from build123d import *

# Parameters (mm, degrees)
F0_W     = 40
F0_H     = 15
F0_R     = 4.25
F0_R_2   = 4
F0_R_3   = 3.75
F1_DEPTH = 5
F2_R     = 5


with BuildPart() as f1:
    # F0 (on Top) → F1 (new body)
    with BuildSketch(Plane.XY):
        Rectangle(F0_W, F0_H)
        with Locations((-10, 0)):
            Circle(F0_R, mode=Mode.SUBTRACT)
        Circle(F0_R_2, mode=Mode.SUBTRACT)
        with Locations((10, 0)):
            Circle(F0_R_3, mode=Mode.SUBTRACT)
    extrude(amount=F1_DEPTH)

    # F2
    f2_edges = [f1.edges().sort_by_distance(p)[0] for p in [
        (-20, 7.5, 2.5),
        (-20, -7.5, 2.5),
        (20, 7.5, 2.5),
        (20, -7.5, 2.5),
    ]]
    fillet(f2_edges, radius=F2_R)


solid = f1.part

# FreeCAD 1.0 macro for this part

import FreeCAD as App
import Part
import Sketcher
from FreeCAD import Vector


def edges_at(feature, points):
    """Names of the edges that pass closest to the given points."""
    edges = feature.Shape.Edges
    near = lambda p: min(range(len(edges)), key=lambda i: edges[i].distToShape(Part.Vertex(*p))[0])
    return sorted({f"Edge{near(p) + 1}" for p in points})

doc = App.newDocument("Part")
body = doc.addObject("PartDesign::Body", "Body")

# Sketch on XY plane
sketch1 = doc.addObject("Sketcher::SketchObject", "Sketch")
body.addObject(sketch1)
sketch1.AttachmentSupport = (doc.XY_Plane, [""])
sketch1.MapMode = "FlatFace"
sketch1.addGeometry([
    Part.LineSegment(Vector(-20, 7.5, 0), Vector(-20, -7.5, 0)),  # 0
    Part.LineSegment(Vector(-20, -7.5, 0), Vector(20, -7.5, 0)),  # 1
    Part.LineSegment(Vector(20, -7.5, 0), Vector(20, 7.5, 0)),  # 2
    Part.LineSegment(Vector(20, 7.5, 0), Vector(-20, 7.5, 0)),  # 3
    Part.Circle(Vector(-10, 0, 0), Vector(0, 0, 1), 4.2),  # 4
    Part.Circle(Vector(0, 0, 0), Vector(0, 0, 1), 4),  # 5
    Part.Circle(Vector(10, 0, 0), Vector(0, 0, 1), 3.8),  # 6
], False)
sketch1.addConstraint([
    Sketcher.Constraint("Coincident", 0, 2, 1, 1),
    Sketcher.Constraint("Coincident", 1, 2, 2, 1),
    Sketcher.Constraint("Coincident", 2, 2, 3, 1),
    Sketcher.Constraint("Coincident", 3, 2, 0, 1),
    Sketcher.Constraint("Vertical", 0),
    Sketcher.Constraint("Horizontal", 1),
    Sketcher.Constraint("Vertical", 2),
    Sketcher.Constraint("Horizontal", 3),
    Sketcher.Constraint("Coincident", 5, 3, -1, 1),
    Sketcher.Constraint("Symmetric", 4, 3, 6, 3, -1, 1),
    Sketcher.Constraint("Symmetric", 0, 2, 2, 2, -1, 1),
    Sketcher.Constraint("PointOnObject", 4, 3, -1),
    Sketcher.Constraint("Diameter", 5, 8.0),
    Sketcher.Constraint("Diameter", 4, 8.5),
    Sketcher.Constraint("Diameter", 6, 7.5),
    Sketcher.Constraint("DistanceX", 1, 1, 1, 2, 40.0),
    Sketcher.Constraint("DistanceY", 0, 2, 0, 1, 15.0),
    Sketcher.Constraint("DistanceX", 4, 3, -1, 1, 10.0),
])
pad1 = doc.addObject("PartDesign::Pad", "Pad")
body.addObject(pad1)
pad1.Profile = sketch1
pad1.Length = 5
doc.recompute()

fillet = doc.addObject("PartDesign::Fillet", "Fillet")
body.addObject(fillet)
fillet.Base = (pad1, edges_at(pad1, [
    (-20, 7.5, 2.5),
    (-20, -7.5, 2.5),
    (20, 7.5, 2.5),
    (20, -7.5, 2.5),
]))
fillet.Radius = 5

doc.recompute()
